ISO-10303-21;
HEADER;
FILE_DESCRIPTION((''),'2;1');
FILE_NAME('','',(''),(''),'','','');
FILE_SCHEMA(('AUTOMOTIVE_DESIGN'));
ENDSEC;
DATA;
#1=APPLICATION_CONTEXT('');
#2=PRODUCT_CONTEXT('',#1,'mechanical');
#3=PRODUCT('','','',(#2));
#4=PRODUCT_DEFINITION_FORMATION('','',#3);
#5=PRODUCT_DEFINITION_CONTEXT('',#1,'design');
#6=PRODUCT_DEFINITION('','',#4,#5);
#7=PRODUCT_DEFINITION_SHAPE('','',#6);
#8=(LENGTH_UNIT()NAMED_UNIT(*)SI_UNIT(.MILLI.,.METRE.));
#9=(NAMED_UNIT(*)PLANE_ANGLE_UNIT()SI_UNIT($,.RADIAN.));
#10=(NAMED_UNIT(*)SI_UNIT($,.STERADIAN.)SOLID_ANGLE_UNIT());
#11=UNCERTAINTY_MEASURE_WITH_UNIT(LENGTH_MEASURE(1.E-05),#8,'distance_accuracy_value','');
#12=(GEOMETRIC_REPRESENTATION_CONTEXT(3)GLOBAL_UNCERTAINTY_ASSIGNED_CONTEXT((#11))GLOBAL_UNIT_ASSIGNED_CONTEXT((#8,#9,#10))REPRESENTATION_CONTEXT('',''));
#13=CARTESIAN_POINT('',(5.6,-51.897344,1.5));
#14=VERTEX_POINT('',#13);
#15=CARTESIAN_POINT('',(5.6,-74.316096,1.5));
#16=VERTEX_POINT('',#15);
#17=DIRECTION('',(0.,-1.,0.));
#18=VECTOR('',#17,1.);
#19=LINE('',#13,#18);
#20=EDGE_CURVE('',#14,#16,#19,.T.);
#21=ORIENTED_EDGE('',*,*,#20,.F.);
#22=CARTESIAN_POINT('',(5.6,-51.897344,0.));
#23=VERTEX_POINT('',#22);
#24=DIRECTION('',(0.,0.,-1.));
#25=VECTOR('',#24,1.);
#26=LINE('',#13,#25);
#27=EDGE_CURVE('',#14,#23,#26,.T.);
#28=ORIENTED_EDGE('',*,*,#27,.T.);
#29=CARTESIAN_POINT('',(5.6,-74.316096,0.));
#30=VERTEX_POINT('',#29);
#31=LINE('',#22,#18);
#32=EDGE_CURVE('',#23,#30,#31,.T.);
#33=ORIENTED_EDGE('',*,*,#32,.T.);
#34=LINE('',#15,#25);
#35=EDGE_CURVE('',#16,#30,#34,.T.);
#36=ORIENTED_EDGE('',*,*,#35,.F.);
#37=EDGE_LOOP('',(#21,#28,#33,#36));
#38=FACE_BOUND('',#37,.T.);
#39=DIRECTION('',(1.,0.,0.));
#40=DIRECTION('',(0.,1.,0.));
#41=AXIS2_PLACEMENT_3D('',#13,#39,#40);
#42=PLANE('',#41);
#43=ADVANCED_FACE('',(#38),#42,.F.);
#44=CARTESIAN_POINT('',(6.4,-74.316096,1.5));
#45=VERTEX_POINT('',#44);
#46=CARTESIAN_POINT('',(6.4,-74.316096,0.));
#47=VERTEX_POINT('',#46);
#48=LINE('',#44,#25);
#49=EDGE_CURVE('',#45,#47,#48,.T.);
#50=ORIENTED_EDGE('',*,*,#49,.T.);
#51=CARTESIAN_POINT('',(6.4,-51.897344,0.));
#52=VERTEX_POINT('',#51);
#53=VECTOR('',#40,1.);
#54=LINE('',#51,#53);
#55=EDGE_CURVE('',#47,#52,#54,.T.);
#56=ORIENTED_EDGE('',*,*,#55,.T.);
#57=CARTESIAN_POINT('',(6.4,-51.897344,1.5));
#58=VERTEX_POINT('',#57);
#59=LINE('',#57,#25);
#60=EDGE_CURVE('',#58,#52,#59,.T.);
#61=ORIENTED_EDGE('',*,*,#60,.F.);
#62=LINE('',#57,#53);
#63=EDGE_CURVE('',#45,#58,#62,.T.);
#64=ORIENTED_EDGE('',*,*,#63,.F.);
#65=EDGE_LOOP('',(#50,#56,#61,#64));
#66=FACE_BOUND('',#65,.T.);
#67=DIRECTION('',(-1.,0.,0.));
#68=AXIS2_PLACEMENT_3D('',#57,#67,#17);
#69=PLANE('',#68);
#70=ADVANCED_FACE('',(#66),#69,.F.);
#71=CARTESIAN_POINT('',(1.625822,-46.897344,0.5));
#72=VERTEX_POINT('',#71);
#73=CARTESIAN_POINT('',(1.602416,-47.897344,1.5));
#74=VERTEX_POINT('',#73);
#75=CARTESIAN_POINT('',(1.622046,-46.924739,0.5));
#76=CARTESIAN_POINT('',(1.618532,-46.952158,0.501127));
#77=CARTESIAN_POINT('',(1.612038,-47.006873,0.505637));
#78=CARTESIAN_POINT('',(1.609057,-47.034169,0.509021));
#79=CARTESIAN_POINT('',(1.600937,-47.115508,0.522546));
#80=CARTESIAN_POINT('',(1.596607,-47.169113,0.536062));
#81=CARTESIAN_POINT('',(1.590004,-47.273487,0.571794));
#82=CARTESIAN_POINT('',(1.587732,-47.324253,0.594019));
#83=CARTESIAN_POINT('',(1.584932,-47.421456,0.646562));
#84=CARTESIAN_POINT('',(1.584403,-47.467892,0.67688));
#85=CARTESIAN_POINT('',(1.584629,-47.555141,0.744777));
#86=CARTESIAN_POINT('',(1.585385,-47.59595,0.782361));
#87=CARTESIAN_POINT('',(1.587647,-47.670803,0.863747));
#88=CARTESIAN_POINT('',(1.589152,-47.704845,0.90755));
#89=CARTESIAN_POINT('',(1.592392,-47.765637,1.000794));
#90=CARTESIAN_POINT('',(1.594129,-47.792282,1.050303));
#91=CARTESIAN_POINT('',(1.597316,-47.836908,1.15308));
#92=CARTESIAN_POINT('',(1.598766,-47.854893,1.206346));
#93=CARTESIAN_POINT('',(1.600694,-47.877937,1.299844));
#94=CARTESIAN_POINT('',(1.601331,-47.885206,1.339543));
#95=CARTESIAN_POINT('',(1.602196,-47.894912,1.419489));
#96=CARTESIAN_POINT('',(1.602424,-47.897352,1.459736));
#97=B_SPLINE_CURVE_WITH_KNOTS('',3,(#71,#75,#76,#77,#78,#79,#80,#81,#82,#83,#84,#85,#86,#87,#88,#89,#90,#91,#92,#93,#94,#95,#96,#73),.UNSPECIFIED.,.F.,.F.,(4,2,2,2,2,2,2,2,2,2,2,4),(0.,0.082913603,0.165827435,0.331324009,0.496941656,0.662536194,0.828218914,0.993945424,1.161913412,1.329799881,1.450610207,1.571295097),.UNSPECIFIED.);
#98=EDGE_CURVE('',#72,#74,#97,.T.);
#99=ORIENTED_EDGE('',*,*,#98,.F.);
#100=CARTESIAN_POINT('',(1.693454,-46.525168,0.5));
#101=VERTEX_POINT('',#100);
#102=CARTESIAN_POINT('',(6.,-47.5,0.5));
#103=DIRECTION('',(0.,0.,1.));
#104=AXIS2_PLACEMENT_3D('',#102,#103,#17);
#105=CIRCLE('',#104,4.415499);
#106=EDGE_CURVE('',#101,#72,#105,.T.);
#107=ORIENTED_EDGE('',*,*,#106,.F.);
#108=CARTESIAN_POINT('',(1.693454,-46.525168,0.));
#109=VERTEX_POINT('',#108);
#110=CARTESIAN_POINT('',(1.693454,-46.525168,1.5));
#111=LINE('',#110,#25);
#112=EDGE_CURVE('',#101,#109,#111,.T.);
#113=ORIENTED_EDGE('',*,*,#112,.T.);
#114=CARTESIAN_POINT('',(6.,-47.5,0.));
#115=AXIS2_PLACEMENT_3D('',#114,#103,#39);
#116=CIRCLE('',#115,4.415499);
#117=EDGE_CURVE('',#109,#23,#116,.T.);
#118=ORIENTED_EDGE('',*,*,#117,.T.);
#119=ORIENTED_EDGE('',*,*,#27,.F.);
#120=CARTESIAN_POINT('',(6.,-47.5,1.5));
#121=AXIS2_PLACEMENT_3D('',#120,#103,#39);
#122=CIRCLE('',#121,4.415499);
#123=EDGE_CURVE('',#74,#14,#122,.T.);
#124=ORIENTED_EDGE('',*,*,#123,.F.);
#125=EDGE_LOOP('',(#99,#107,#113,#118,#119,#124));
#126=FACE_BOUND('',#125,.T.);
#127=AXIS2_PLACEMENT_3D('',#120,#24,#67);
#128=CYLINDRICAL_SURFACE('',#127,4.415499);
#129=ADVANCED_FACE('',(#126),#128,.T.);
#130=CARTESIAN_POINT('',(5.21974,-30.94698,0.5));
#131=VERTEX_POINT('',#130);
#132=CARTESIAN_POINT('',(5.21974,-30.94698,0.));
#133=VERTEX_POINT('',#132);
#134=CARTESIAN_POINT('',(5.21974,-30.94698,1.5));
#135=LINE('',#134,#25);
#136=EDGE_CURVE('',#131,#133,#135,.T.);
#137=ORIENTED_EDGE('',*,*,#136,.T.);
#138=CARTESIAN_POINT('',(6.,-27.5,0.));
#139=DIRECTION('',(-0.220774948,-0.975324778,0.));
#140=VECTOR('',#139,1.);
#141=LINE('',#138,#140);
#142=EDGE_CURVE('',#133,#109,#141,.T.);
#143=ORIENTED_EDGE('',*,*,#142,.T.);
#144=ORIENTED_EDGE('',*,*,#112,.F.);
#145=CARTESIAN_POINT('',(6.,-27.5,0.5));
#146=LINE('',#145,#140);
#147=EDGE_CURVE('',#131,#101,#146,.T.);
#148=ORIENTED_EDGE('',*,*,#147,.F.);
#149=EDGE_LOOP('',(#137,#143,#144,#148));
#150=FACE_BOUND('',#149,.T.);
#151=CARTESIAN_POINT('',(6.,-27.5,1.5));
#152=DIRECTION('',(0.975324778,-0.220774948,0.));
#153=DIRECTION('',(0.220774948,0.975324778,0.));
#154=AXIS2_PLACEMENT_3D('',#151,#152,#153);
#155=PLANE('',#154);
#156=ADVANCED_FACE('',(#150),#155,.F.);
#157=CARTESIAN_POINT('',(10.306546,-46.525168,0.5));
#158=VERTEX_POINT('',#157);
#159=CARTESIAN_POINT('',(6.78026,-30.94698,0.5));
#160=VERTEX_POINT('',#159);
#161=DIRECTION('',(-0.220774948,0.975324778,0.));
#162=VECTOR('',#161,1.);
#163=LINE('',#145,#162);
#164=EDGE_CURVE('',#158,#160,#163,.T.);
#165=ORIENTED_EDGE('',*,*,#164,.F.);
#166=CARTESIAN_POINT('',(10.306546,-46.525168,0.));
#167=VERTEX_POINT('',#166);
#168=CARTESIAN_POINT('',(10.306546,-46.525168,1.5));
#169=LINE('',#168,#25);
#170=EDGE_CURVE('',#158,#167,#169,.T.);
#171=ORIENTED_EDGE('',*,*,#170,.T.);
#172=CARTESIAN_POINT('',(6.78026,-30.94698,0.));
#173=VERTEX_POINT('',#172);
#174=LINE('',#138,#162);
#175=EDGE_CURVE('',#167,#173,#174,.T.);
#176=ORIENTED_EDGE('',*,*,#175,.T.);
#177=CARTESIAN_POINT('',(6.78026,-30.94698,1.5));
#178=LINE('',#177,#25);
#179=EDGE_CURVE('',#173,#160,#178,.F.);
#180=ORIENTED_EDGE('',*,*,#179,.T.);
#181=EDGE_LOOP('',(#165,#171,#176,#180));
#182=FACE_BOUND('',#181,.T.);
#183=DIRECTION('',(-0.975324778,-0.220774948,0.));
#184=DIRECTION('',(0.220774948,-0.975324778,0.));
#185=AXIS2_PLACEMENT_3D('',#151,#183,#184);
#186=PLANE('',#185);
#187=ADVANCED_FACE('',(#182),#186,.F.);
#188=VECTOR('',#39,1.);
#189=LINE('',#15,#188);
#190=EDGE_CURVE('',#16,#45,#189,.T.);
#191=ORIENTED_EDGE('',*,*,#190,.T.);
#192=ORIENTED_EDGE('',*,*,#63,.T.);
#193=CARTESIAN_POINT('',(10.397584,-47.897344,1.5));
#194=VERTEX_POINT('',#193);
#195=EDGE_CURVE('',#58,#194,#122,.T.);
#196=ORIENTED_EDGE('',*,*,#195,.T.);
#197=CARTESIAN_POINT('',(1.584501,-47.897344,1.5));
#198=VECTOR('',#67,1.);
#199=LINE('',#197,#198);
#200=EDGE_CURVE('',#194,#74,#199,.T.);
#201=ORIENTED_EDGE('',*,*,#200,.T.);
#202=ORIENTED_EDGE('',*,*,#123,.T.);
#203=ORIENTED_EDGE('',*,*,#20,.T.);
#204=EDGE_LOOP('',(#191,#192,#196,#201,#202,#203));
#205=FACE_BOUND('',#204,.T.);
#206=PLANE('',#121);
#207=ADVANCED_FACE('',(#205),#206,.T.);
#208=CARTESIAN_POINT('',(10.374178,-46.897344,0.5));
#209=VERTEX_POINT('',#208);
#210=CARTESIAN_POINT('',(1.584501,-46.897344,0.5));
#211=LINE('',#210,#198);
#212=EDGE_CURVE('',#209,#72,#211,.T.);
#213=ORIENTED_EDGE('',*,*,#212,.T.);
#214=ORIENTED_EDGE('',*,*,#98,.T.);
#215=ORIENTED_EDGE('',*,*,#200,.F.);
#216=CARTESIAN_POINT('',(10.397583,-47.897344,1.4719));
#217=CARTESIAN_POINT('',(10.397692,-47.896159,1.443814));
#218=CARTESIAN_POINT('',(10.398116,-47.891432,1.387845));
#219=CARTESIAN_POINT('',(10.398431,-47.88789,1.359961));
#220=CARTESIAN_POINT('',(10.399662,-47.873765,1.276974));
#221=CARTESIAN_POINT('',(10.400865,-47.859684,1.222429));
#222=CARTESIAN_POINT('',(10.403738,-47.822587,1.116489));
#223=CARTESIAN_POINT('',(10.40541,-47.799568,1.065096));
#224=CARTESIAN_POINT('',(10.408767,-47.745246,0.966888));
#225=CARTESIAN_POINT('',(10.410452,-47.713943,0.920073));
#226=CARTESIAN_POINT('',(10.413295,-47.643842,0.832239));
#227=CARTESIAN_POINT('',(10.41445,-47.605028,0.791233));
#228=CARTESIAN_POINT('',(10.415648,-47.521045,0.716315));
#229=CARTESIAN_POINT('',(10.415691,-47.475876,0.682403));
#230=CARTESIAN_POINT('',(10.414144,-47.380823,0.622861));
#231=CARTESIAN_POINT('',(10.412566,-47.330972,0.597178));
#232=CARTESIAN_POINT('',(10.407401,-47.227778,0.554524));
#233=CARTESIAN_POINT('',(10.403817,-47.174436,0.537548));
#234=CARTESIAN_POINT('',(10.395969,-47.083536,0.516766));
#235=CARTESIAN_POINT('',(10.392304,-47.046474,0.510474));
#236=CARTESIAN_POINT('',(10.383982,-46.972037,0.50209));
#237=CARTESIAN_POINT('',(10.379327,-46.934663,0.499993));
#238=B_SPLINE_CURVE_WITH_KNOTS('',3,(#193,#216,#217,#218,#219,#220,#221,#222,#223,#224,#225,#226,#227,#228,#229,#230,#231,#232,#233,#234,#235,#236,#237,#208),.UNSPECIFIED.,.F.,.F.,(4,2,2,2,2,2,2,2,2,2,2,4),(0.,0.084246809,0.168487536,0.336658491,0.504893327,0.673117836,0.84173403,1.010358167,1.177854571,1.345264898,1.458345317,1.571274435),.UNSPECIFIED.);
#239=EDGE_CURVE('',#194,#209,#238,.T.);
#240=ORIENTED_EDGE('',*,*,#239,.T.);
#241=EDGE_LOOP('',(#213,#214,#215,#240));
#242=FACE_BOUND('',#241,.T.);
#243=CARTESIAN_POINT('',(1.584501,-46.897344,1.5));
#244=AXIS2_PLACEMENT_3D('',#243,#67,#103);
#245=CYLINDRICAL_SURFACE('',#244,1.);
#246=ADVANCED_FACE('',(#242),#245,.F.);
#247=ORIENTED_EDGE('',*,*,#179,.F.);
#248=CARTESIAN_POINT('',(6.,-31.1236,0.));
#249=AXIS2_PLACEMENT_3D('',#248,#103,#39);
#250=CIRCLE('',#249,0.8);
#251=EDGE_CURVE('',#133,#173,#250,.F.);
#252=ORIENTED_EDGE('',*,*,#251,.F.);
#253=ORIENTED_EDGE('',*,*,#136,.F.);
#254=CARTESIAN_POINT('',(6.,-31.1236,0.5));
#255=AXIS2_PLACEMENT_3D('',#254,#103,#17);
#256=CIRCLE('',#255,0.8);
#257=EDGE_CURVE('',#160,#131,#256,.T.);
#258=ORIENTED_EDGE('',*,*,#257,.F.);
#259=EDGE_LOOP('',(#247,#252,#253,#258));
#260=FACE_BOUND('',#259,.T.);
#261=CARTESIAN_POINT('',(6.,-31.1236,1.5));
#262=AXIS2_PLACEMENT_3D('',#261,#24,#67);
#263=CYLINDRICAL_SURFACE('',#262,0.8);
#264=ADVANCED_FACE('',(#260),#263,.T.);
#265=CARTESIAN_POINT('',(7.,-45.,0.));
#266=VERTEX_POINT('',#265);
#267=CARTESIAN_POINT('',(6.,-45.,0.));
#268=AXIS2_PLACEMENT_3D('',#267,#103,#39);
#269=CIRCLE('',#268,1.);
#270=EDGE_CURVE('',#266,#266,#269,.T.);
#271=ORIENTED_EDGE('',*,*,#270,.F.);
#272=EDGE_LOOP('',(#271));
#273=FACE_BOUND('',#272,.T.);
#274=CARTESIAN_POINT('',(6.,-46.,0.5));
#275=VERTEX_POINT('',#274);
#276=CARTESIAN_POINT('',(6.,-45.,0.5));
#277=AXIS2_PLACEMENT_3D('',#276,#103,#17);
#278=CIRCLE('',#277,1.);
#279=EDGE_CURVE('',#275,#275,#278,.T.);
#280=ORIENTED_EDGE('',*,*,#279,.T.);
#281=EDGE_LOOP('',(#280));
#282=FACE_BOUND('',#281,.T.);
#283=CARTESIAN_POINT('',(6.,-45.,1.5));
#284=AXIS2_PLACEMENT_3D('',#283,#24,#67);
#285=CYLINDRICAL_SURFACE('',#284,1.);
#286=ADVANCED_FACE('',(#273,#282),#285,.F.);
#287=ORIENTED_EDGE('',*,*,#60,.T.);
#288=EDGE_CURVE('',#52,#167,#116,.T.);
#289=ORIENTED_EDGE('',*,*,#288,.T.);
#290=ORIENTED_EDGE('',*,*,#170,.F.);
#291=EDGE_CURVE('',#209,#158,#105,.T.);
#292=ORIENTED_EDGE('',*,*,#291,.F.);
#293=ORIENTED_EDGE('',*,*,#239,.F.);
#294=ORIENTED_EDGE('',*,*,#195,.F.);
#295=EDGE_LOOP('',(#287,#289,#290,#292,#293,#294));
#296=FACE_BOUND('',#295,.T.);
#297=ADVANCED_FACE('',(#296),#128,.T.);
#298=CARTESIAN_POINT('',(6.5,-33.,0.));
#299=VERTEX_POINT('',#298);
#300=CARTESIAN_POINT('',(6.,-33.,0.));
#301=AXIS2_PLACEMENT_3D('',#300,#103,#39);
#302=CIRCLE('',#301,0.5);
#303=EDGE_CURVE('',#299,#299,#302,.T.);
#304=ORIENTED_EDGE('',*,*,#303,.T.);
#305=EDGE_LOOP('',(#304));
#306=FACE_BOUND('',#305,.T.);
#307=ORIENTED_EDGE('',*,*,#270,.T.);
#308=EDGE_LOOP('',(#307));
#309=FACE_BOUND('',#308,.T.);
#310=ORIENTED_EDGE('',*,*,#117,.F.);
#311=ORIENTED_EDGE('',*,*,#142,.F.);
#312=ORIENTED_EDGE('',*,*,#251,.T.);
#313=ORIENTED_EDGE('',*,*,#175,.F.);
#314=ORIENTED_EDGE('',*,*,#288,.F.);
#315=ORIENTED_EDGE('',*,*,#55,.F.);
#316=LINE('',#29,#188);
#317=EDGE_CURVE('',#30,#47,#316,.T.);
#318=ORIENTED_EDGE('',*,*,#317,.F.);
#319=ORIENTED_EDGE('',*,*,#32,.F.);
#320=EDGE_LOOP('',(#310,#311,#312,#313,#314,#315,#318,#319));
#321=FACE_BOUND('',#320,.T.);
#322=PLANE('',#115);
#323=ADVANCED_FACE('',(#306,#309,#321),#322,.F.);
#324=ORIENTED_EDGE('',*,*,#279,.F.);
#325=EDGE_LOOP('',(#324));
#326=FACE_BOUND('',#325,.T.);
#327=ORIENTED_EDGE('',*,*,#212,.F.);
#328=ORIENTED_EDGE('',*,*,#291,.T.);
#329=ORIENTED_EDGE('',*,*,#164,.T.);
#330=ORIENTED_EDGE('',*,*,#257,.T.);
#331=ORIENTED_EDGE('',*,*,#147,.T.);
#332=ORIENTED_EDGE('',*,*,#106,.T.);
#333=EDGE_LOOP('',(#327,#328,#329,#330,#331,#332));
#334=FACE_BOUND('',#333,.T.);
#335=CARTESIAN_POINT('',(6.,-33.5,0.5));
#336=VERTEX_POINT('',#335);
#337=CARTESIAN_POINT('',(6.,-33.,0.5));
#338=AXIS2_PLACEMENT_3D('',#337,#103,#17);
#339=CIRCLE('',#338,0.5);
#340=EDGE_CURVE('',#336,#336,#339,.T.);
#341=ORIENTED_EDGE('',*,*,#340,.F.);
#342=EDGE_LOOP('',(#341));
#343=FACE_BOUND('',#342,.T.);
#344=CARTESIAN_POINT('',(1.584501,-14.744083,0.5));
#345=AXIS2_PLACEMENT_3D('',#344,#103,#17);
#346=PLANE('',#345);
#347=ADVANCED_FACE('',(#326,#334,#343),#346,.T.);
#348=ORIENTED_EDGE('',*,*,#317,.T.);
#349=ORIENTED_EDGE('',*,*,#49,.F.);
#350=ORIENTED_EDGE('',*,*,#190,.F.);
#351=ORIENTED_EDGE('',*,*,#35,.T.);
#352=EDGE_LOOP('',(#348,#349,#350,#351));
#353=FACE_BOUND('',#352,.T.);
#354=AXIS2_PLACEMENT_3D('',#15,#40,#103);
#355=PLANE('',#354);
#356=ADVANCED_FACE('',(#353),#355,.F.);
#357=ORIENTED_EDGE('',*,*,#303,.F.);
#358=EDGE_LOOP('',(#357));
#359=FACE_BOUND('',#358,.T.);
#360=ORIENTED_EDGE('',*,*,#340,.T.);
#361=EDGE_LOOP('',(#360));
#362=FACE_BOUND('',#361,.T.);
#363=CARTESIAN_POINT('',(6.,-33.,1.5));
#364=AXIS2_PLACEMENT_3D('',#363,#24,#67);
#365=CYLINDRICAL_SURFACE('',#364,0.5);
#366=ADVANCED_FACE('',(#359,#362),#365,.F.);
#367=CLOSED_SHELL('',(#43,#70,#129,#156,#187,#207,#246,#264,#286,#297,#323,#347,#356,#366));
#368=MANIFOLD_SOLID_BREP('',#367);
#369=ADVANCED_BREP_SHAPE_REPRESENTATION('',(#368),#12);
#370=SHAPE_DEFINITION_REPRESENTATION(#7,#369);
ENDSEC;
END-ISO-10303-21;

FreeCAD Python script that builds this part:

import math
import FreeCAD as App
import Part
import Sketcher
from FreeCAD import Vector


def edges_at(feature, points):
    """Names of the edges that pass closest to the given points."""
    edges = feature.Shape.Edges
    near = lambda p: min(range(len(edges)), key=lambda i: edges[i].distToShape(Part.Vertex(*p))[0])
    return sorted({f"Edge{near(p) + 1}" for p in points})

doc = App.newDocument("Part")
body = doc.addObject("PartDesign::Body", "Body")

# Sketch on XY plane
sketch1 = body.newObject("Sketcher::SketchObject", "Sketch")
sketch1.AttachmentSupport = (doc.getObject("XY_Plane"), [""])
sketch1.MapMode = "FlatFace"
sketch1.addGeometry([
    Part.LineSegment(Vector(6, -27.5, 0), Vector(1.7, -46.5, 0)),  # 0
    Part.ArcOfCircle(Part.Circle(Vector(6, -47.5, 0), Vector(0, 0, 1), 4.4), math.radians(167), math.radians(265)),  # 1
    Part.LineSegment(Vector(5.6, -51.9, 0), Vector(5.6, -74.3, 0)),  # 2
    Part.LineSegment(Vector(5.6, -74.3, 0), Vector(6.4, -74.3, 0)),  # 3
    Part.LineSegment(Vector(6.4, -74.3, 0), Vector(6.4, -51.9, 0)),  # 4
    Part.ArcOfCircle(Part.Circle(Vector(6, -47.5, 0), Vector(0, 0, 1), 4.4), math.radians(-85), math.radians(13)),  # 5
    Part.LineSegment(Vector(10.3, -46.5, 0), Vector(6, -27.5, 0)),  # 6
    Part.Circle(Vector(6, -45, 0), Vector(0, 0, 1), 1),  # 7
    Part.Circle(Vector(6, -33, 0), Vector(0, 0, 1), 0.5),  # 8
], False)
sketch1.addConstraint([
    Sketcher.Constraint("Tangent", 0, 2, 1, 1),
    Sketcher.Constraint("Coincident", 1, 2, 2, 1),
    Sketcher.Constraint("Coincident", 2, 2, 3, 1),
    Sketcher.Constraint("Coincident", 3, 2, 4, 1),
    Sketcher.Constraint("Coincident", 4, 2, 5, 1),
    Sketcher.Constraint("Tangent", 5, 2, 6, 1),
    Sketcher.Constraint("Coincident", 6, 2, 0, 1),
    Sketcher.Constraint("Vertical", 2),
    Sketcher.Constraint("Horizontal", 3),
    Sketcher.Constraint("Vertical", 4),
    Sketcher.Constraint("Coincident", 5, 3, 1, 3),
    Sketcher.Constraint("Equal", 1, 5),
    Sketcher.Constraint("Horizontal", 1, 2, 4, 2),
    Sketcher.Constraint("Horizontal", 0, 2, 5, 2),
    Sketcher.Constraint("Vertical", 5, 3, 7, 3),
    Sketcher.Constraint("Vertical", 7, 3, 8, 3),
    Sketcher.Constraint("Diameter", 7, 2.0),
    Sketcher.Constraint("Diameter", 8, 1.0),
    Sketcher.Constraint("DistanceX", 3, 1, 3, 2, 0.8),
    Sketcher.Constraint("DistanceX", -1, 1, 1, 3, 6.0),
    Sketcher.Constraint("DistanceY", 7, 3, -1, 1, 45.0),
    Sketcher.Constraint("DistanceY", 8, 3, -1, 1, 33.0),
    Sketcher.Constraint("DistanceY", 1, 3, 6, 2, 20.0),
    Sketcher.Constraint("DistanceY", 1, 3, -1, 1, 47.5),
    Sketcher.Constraint("Radius", 1, 4.415499),
    Sketcher.Constraint("DistanceY", 2, 2, 2, 1, 22.418752),
])
pad1 = body.newObject("PartDesign::Pad", "Pad")
pad1.Profile = sketch1
pad1.Length = 1.5

# Sketch on YZ plane
sketch2 = body.newObject("Sketcher::SketchObject", "Sketch001")
sketch2.AttachmentSupport = (doc.getObject("YZ_Plane"), [""])
sketch2.MapMode = "FlatFace"
sketch2.addGeometry([
    Part.LineSegment(Vector(-14.7, 0.5, 0), Vector(-14.7, 1.5, 0)),
    Part.LineSegment(Vector(-14.7, 1.5, 0), Vector(-47.9, 1.5, 0)),
    Part.ArcOfCircle(Part.Circle(Vector(-46.9, 1.5, 0), Vector(0, 0, 1), 1), math.radians(180), math.radians(270)),
    Part.LineSegment(Vector(-46.9, 0.5, 0), Vector(-14.7, 0.5, 0)),
], False)
sketch2.addConstraint([
    Sketcher.Constraint("Coincident", 0, 2, 1, 1),
    Sketcher.Constraint("Coincident", 1, 2, 2, 1),
    Sketcher.Constraint("Tangent", 2, 2, 3, 1),
    Sketcher.Constraint("Coincident", 3, 2, 0, 1),
    Sketcher.Constraint("Vertical", 0),
    Sketcher.Constraint("Horizontal", 1),
    Sketcher.Constraint("Horizontal", 3),
    Sketcher.Constraint("Horizontal", 2, 3, 0, 2),
    Sketcher.Constraint("Radius", 2, 1.0),
    Sketcher.Constraint("DistanceY", -1, 1, 2, 3, 1.5),
    Sketcher.Constraint("DistanceX", 1, 2, 1, 1, 33.15326),
    Sketcher.Constraint("DistanceX", 2, 3, -1, 1, 46.897344),
])
pocket1 = body.newObject("PartDesign::Pocket", "Pocket")
pocket1.Profile = sketch2
pocket1.Type = "ThroughAll"
pocket1.Midplane = True
doc.recompute()

fillet = body.newObject("PartDesign::Fillet", "Fillet")
fillet.Base = (pocket1, edges_at(pocket1, [(6, -27.5, 0.25)]))
fillet.Radius = 0.8

doc.recompute()
